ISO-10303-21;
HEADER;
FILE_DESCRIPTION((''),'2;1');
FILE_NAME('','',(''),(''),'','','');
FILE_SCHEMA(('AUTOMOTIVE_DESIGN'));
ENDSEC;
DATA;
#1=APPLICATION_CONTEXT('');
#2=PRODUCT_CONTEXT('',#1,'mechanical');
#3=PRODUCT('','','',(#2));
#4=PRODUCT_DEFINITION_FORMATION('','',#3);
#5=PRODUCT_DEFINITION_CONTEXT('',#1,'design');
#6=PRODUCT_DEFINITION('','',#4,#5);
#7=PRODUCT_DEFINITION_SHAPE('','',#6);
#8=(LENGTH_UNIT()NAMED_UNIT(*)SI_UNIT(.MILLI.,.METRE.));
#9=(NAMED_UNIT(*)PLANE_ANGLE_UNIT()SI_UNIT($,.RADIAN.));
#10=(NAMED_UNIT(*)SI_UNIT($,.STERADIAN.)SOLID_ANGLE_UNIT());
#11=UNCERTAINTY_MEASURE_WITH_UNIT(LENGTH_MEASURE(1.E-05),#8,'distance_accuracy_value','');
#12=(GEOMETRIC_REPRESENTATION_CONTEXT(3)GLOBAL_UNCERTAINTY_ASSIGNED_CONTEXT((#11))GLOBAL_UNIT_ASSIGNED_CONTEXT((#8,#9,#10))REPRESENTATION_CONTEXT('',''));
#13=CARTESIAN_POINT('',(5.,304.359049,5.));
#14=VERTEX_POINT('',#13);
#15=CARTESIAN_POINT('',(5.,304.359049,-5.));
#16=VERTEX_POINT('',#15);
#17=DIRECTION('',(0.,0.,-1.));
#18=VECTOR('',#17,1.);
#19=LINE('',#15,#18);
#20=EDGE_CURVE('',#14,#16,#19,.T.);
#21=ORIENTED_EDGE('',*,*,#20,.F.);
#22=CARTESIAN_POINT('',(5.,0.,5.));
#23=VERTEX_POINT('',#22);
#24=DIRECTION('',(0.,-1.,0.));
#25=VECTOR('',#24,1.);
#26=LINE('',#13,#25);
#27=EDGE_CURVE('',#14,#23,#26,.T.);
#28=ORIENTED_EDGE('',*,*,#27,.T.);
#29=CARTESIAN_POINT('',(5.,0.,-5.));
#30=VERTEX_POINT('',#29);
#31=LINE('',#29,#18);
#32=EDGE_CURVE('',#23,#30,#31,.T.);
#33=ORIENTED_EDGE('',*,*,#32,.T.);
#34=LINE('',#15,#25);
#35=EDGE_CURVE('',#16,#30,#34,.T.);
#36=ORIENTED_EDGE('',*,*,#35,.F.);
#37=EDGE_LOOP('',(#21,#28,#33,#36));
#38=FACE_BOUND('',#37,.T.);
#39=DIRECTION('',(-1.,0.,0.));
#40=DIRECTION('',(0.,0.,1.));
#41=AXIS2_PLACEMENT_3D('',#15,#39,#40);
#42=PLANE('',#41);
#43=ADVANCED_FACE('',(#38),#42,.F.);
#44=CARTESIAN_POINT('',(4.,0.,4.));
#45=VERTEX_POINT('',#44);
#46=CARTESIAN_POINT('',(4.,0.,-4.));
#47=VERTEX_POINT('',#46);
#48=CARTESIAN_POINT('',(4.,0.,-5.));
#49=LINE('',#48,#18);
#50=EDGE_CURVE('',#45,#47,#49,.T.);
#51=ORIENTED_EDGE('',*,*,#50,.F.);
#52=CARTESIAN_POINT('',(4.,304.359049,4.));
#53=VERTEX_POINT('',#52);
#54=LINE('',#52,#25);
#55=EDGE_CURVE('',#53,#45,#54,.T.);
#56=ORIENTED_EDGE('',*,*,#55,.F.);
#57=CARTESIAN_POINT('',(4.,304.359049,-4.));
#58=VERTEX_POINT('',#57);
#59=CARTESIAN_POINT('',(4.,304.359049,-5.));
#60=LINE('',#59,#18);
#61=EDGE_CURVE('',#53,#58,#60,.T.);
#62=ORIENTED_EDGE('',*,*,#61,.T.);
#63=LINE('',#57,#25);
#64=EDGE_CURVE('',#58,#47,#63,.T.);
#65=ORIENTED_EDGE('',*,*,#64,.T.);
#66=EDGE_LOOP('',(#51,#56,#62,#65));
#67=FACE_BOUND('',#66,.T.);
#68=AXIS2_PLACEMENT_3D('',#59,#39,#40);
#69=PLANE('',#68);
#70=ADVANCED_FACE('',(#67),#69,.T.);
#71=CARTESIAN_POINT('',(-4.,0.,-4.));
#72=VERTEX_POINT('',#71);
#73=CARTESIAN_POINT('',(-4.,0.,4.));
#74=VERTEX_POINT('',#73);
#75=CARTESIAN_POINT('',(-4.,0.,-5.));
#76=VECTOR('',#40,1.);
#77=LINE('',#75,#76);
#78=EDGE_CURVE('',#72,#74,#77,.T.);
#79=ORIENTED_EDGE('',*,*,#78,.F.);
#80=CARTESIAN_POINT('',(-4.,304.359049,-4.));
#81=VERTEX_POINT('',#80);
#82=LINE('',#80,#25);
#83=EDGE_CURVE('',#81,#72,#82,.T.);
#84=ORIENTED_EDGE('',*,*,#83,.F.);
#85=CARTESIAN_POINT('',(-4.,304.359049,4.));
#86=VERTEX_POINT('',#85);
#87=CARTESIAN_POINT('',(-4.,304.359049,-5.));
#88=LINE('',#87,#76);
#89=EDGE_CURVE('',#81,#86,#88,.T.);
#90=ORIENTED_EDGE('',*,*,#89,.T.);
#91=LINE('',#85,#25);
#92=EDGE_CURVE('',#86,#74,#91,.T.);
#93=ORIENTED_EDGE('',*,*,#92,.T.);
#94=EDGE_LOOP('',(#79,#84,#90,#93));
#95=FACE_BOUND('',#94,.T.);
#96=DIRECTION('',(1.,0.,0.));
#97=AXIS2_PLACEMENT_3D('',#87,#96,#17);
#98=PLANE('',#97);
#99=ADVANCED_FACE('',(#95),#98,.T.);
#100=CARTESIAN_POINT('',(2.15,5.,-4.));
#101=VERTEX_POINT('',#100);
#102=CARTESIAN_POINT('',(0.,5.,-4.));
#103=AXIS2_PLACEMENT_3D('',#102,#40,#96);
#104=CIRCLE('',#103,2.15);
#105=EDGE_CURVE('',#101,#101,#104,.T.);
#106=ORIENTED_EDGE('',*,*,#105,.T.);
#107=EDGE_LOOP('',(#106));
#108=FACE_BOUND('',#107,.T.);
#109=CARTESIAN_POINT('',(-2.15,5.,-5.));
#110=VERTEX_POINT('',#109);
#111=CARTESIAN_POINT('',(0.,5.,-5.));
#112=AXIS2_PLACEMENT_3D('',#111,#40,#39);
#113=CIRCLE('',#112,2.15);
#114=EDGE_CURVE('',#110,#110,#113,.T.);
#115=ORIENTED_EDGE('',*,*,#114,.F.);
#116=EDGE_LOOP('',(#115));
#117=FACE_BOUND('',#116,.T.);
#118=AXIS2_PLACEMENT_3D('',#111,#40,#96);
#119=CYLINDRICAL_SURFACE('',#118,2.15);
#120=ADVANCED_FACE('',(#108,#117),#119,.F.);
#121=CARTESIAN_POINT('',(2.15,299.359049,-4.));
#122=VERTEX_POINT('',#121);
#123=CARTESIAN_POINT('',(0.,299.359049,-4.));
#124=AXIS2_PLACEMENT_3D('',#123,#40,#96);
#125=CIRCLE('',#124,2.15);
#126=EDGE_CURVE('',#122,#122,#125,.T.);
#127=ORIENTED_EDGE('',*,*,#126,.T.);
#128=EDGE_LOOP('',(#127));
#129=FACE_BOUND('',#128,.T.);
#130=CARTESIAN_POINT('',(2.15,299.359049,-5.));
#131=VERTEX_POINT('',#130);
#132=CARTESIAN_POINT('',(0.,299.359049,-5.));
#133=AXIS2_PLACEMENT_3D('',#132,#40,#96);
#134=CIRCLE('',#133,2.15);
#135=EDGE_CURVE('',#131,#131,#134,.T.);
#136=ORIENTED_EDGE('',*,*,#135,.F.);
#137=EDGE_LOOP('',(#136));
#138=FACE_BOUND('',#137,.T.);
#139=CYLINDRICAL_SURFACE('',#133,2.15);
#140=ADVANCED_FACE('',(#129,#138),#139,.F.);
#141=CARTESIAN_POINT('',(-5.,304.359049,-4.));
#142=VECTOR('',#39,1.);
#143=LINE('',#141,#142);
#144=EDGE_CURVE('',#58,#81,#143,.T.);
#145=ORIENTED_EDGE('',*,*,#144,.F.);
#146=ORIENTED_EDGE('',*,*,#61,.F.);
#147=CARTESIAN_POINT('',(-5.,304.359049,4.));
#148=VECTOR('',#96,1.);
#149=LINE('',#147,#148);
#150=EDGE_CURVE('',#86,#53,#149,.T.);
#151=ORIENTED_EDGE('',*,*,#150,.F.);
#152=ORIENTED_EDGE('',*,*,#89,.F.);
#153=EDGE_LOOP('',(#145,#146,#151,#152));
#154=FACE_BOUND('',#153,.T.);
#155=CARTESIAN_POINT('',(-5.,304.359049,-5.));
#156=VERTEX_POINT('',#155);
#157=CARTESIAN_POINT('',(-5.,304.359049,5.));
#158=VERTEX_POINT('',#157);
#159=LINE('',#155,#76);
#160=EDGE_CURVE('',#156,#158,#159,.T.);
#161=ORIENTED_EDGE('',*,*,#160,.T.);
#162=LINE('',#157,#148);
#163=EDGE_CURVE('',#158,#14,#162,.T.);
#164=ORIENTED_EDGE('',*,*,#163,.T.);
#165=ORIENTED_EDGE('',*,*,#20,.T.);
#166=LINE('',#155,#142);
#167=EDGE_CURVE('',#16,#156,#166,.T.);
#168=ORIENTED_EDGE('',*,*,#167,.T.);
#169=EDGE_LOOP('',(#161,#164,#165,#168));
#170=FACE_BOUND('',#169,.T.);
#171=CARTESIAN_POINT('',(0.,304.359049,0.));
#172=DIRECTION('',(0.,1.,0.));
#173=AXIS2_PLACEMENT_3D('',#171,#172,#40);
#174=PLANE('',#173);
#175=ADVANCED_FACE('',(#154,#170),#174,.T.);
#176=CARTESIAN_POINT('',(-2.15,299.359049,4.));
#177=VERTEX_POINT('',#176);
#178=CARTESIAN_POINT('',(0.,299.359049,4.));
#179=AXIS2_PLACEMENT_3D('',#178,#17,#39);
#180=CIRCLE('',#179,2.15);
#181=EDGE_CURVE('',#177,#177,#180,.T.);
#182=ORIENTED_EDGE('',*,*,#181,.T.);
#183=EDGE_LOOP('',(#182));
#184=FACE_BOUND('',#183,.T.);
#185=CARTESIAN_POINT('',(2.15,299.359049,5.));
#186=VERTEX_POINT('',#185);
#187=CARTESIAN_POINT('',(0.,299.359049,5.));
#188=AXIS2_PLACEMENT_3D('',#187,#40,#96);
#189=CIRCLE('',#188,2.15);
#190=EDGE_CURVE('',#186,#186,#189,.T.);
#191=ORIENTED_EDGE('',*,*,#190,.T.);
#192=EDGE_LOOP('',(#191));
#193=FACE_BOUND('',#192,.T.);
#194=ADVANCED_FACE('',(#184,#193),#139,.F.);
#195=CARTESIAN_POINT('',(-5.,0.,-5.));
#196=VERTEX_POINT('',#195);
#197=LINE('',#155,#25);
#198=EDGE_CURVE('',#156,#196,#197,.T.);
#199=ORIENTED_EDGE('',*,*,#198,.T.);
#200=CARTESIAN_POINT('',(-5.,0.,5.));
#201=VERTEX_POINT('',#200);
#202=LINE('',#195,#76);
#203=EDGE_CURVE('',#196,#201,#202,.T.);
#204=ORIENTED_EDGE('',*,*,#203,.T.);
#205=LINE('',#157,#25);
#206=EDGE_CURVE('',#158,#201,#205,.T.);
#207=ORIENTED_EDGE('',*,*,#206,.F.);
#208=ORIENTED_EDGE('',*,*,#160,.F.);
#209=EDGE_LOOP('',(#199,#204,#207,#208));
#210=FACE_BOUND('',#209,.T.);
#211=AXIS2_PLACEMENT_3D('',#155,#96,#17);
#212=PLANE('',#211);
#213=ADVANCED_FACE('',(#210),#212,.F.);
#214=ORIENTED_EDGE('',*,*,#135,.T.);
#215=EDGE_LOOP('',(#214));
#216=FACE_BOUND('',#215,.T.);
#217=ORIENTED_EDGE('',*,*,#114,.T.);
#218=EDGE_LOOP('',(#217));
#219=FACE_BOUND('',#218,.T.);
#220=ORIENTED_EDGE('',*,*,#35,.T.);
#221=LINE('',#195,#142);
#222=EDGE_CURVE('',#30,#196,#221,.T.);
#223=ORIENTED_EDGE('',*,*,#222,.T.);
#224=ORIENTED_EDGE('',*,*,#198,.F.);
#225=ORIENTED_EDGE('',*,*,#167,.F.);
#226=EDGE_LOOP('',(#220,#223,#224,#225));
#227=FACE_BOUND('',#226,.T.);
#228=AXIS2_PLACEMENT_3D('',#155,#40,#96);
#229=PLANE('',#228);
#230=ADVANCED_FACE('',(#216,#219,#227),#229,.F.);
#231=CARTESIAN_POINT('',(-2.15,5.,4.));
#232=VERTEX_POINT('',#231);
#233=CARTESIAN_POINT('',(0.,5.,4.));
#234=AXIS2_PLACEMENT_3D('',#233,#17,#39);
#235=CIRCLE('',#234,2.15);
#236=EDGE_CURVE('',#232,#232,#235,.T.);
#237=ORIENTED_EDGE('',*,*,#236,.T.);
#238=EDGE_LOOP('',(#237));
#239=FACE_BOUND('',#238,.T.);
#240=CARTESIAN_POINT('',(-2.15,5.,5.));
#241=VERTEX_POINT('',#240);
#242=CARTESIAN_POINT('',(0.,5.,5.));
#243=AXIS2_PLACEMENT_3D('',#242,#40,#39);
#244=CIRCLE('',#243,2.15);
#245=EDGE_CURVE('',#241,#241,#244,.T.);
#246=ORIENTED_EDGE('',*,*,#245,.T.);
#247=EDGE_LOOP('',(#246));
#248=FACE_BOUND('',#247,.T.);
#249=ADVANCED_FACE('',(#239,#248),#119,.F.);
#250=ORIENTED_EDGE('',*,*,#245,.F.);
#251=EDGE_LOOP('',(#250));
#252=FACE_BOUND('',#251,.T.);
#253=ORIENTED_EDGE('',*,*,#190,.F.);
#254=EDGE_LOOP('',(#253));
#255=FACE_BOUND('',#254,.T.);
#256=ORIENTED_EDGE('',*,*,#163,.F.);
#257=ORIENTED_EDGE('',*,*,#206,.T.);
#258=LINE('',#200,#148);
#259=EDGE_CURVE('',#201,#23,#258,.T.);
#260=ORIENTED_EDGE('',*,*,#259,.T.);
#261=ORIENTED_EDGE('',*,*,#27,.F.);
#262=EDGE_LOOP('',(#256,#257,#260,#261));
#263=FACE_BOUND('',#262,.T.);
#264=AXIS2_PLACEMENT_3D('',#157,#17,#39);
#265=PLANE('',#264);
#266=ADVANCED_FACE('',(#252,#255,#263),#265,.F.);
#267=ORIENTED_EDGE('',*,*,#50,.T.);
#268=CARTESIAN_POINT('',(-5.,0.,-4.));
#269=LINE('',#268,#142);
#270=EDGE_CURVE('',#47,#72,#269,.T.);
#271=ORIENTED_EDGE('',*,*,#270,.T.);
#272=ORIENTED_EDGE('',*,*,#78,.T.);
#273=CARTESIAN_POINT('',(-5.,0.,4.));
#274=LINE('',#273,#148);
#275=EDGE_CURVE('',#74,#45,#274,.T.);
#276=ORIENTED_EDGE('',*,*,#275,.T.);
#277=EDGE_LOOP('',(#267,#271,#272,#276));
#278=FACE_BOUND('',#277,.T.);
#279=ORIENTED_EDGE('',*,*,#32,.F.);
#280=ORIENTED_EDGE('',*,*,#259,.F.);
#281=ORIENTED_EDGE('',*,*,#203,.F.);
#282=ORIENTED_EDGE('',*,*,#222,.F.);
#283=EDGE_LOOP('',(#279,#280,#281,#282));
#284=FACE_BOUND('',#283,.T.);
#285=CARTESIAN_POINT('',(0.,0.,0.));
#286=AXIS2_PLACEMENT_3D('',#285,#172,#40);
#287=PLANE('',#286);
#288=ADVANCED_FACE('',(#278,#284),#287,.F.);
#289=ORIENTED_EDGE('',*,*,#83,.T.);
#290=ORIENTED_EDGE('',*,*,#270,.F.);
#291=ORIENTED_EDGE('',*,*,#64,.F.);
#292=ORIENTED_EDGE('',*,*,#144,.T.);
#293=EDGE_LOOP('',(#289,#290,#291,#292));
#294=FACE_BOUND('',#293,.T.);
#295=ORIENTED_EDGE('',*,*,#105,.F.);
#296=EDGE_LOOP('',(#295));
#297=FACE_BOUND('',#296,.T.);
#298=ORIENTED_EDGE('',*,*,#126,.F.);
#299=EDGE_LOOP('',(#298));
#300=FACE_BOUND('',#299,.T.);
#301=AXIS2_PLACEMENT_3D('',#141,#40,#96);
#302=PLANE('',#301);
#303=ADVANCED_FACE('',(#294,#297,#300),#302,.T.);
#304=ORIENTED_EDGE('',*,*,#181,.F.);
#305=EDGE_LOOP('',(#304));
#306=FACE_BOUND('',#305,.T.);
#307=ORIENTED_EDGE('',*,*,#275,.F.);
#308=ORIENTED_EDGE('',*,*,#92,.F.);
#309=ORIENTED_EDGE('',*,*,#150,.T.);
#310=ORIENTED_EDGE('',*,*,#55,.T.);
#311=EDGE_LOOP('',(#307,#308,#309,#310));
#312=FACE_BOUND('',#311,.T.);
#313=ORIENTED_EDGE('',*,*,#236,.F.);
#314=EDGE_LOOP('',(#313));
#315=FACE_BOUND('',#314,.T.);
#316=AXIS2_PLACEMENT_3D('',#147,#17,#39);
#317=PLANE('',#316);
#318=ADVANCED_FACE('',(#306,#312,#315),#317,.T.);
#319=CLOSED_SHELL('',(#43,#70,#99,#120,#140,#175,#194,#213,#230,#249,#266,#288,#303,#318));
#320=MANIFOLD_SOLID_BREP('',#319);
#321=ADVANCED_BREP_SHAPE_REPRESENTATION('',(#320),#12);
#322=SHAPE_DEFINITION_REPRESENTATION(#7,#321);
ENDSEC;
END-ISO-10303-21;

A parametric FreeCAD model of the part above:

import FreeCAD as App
import Part
import Sketcher
from FreeCAD import Vector


def add_polygon(sketch, points):
    """Adds a closed chain of lines whose ends are joined by coincident constraints."""
    first, n = sketch.GeometryCount, len(points)
    for a, b in zip(points, points[1:] + points[:1]):
        sketch.addGeometry(Part.LineSegment(App.Vector(*a, 0), App.Vector(*b, 0)), False)
    for i in range(n):
        sketch.addConstraint(Sketcher.Constraint("Coincident", first + i, 2, first + (i + 1) % n, 1))

doc = App.newDocument("Part")
body = doc.addObject("PartDesign::Body", "Body")

# Sketch on XZ plane
sketch1 = body.newObject("Sketcher::SketchObject", "Sketch")
sketch1.AttachmentSupport = (doc.getObject("XZ_Plane"), [""])
sketch1.MapMode = "FlatFace"
add_polygon(sketch1, [(-5, -5), (-5, 5), (5, 5), (5, -5)])  # lines 0-3
add_polygon(sketch1, [(4, 4), (-4, 4), (-4, -4), (4, -4)])  # lines 4-7
sketch1.addConstraint([
    Sketcher.Constraint("Vertical", 0),
    Sketcher.Constraint("Horizontal", 1),
    Sketcher.Constraint("Vertical", 2),
    Sketcher.Constraint("Horizontal", 3),
    Sketcher.Constraint("Horizontal", 4),
    Sketcher.Constraint("Vertical", 5),
    Sketcher.Constraint("Horizontal", 6),
    Sketcher.Constraint("Vertical", 7),
    Sketcher.Constraint("Symmetric", 0, 2, 2, 2, -1, 1),
    Sketcher.Constraint("Symmetric", 4, 2, 6, 2, -1, 1),
    Sketcher.Constraint("Equal", 3, 0),
    Sketcher.Constraint("Equal", 6, 5),
    Sketcher.Constraint("DistanceX", 1, 1, 1, 2, 10.0),
    Sketcher.Constraint("DistanceX", 4, 2, 4, 1, 8.0),
])
pad1 = body.newObject("PartDesign::Pad", "Pad")
pad1.Profile = sketch1
pad1.Length = 304.359049
pad1.Reversed = True

# Sketch on XY plane
sketch2 = body.newObject("Sketcher::SketchObject", "Sketch001")
sketch2.AttachmentSupport = (doc.getObject("XY_Plane"), [""])
sketch2.MapMode = "FlatFace"
sketch2.AttachmentOffset = App.Placement(Vector(0, 0, 5), App.Rotation())
sketch2.addGeometry([
    Part.Circle(Vector(0, 299.359049, 0), Vector(0, 0, 1), 2.15),
    Part.Circle(Vector(0, 5, 0), Vector(0, 0, 1), 2.15),
], False)
sketch2.addConstraint([
    Sketcher.Constraint("Equal", 0, 1),
    Sketcher.Constraint("PointOnObject", 0, 3, -2),
    Sketcher.Constraint("PointOnObject", 1, 3, -2),
    Sketcher.Constraint("Diameter", 0, 4.3),
    Sketcher.Constraint("DistanceY", -1, 1, 1, 3, 5.0),
    Sketcher.Constraint("DistanceY", -1, 1, 0, 3, 299.359049),
])
pocket1 = body.newObject("PartDesign::Pocket", "Pocket")
pocket1.Profile = sketch2
pocket1.Type = "ThroughAll"

doc.recompute()
